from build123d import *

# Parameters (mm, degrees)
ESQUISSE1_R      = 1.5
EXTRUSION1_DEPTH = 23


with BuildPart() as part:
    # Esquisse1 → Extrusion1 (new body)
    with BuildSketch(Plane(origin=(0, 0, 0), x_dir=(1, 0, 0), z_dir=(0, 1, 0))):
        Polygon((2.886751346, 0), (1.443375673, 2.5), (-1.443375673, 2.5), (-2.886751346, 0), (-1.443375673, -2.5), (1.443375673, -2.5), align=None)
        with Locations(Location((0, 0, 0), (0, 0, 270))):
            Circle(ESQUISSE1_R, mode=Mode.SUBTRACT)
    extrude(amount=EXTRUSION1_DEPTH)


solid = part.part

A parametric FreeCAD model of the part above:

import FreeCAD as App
import Part
import Sketcher

V = App.Vector
Q = App.Units.Quantity


def add_polygon(sketch, points):
    """Adds a closed chain of lines whose ends are joined by coincident constraints."""
    first, n = sketch.GeometryCount, len(points)
    for a, b in zip(points, points[1:] + points[:1]):
        sketch.addGeometry(Part.LineSegment(App.Vector(*a, 0), App.Vector(*b, 0)), False)
    for i in range(n):
        sketch.addConstraint(Sketcher.Constraint("Coincident", first + i, 2, first + (i + 1) % n, 1))

doc = App.newDocument("Part")
params = doc.addObject("Spreadsheet::Sheet", "Params")
for row, (alias, value) in enumerate([
    ("sketch1_diameter", "3 mm"),
    ("pad1_length", "23 mm"),
], start=1):
    params.set(f"A{row}", alias)
    params.set(f"B{row}", "=" + value)
    params.setAlias(f"B{row}", alias)

body = doc.addObject("PartDesign::Body", "Body")

# Sketch on XZ plane
sketch1 = body.newObject("Sketcher::SketchObject", "Sketch")
sketch1.AttachmentSupport = (doc.getObject("XZ_Plane"), [""])
sketch1.MapMode = "FlatFace"
add_polygon(sketch1, [(2.9, 0), (1.4, -2.5), (-1.4, -2.5), (-2.9, 0), (-1.4, 2.5), (1.4, 2.5)])  # lines 0-5
sketch1.addGeometry(Part.Circle(V(0, 0, 0), V(0, 0, 1), 1.5), False)  # 6
sketch1.addConstraint([
    Sketcher.Constraint("Horizontal", 1),
    Sketcher.Constraint("Horizontal", 4),
    Sketcher.Constraint("Coincident", 6, 3, -1, 1),
    Sketcher.Constraint("Symmetric", 0, 2, 3, 2, -1, 1),
    Sketcher.Constraint("Symmetric", 2, 2, 5, 2, -1, 1),
    Sketcher.Constraint("PointOnObject", 2, 2, -1),
    Sketcher.Constraint("Parallel", 2, 5),
    Sketcher.Constraint("Vertical", 1, 2, 3, 2),
    Sketcher.Constraint("Diameter", 6, Q("3 mm")),
    Sketcher.Constraint("Angle", 0, Q("-120 deg")),
    Sketcher.Constraint("DistanceY", 1, 2, 3, 2, Q("5 mm")),
    Sketcher.Constraint("DistanceX", 1, 2, 1, 1, Q("2.886751 mm")),
])
sketch1.setExpression("Constraints[14]", "Params.sketch1_diameter")
pad1 = body.newObject("PartDesign::Pad", "Pad")
pad1.Profile = sketch1
pad1.setExpression("Length", "Params.pad1_length")
pad1.Reversed = True

doc.recompute()
